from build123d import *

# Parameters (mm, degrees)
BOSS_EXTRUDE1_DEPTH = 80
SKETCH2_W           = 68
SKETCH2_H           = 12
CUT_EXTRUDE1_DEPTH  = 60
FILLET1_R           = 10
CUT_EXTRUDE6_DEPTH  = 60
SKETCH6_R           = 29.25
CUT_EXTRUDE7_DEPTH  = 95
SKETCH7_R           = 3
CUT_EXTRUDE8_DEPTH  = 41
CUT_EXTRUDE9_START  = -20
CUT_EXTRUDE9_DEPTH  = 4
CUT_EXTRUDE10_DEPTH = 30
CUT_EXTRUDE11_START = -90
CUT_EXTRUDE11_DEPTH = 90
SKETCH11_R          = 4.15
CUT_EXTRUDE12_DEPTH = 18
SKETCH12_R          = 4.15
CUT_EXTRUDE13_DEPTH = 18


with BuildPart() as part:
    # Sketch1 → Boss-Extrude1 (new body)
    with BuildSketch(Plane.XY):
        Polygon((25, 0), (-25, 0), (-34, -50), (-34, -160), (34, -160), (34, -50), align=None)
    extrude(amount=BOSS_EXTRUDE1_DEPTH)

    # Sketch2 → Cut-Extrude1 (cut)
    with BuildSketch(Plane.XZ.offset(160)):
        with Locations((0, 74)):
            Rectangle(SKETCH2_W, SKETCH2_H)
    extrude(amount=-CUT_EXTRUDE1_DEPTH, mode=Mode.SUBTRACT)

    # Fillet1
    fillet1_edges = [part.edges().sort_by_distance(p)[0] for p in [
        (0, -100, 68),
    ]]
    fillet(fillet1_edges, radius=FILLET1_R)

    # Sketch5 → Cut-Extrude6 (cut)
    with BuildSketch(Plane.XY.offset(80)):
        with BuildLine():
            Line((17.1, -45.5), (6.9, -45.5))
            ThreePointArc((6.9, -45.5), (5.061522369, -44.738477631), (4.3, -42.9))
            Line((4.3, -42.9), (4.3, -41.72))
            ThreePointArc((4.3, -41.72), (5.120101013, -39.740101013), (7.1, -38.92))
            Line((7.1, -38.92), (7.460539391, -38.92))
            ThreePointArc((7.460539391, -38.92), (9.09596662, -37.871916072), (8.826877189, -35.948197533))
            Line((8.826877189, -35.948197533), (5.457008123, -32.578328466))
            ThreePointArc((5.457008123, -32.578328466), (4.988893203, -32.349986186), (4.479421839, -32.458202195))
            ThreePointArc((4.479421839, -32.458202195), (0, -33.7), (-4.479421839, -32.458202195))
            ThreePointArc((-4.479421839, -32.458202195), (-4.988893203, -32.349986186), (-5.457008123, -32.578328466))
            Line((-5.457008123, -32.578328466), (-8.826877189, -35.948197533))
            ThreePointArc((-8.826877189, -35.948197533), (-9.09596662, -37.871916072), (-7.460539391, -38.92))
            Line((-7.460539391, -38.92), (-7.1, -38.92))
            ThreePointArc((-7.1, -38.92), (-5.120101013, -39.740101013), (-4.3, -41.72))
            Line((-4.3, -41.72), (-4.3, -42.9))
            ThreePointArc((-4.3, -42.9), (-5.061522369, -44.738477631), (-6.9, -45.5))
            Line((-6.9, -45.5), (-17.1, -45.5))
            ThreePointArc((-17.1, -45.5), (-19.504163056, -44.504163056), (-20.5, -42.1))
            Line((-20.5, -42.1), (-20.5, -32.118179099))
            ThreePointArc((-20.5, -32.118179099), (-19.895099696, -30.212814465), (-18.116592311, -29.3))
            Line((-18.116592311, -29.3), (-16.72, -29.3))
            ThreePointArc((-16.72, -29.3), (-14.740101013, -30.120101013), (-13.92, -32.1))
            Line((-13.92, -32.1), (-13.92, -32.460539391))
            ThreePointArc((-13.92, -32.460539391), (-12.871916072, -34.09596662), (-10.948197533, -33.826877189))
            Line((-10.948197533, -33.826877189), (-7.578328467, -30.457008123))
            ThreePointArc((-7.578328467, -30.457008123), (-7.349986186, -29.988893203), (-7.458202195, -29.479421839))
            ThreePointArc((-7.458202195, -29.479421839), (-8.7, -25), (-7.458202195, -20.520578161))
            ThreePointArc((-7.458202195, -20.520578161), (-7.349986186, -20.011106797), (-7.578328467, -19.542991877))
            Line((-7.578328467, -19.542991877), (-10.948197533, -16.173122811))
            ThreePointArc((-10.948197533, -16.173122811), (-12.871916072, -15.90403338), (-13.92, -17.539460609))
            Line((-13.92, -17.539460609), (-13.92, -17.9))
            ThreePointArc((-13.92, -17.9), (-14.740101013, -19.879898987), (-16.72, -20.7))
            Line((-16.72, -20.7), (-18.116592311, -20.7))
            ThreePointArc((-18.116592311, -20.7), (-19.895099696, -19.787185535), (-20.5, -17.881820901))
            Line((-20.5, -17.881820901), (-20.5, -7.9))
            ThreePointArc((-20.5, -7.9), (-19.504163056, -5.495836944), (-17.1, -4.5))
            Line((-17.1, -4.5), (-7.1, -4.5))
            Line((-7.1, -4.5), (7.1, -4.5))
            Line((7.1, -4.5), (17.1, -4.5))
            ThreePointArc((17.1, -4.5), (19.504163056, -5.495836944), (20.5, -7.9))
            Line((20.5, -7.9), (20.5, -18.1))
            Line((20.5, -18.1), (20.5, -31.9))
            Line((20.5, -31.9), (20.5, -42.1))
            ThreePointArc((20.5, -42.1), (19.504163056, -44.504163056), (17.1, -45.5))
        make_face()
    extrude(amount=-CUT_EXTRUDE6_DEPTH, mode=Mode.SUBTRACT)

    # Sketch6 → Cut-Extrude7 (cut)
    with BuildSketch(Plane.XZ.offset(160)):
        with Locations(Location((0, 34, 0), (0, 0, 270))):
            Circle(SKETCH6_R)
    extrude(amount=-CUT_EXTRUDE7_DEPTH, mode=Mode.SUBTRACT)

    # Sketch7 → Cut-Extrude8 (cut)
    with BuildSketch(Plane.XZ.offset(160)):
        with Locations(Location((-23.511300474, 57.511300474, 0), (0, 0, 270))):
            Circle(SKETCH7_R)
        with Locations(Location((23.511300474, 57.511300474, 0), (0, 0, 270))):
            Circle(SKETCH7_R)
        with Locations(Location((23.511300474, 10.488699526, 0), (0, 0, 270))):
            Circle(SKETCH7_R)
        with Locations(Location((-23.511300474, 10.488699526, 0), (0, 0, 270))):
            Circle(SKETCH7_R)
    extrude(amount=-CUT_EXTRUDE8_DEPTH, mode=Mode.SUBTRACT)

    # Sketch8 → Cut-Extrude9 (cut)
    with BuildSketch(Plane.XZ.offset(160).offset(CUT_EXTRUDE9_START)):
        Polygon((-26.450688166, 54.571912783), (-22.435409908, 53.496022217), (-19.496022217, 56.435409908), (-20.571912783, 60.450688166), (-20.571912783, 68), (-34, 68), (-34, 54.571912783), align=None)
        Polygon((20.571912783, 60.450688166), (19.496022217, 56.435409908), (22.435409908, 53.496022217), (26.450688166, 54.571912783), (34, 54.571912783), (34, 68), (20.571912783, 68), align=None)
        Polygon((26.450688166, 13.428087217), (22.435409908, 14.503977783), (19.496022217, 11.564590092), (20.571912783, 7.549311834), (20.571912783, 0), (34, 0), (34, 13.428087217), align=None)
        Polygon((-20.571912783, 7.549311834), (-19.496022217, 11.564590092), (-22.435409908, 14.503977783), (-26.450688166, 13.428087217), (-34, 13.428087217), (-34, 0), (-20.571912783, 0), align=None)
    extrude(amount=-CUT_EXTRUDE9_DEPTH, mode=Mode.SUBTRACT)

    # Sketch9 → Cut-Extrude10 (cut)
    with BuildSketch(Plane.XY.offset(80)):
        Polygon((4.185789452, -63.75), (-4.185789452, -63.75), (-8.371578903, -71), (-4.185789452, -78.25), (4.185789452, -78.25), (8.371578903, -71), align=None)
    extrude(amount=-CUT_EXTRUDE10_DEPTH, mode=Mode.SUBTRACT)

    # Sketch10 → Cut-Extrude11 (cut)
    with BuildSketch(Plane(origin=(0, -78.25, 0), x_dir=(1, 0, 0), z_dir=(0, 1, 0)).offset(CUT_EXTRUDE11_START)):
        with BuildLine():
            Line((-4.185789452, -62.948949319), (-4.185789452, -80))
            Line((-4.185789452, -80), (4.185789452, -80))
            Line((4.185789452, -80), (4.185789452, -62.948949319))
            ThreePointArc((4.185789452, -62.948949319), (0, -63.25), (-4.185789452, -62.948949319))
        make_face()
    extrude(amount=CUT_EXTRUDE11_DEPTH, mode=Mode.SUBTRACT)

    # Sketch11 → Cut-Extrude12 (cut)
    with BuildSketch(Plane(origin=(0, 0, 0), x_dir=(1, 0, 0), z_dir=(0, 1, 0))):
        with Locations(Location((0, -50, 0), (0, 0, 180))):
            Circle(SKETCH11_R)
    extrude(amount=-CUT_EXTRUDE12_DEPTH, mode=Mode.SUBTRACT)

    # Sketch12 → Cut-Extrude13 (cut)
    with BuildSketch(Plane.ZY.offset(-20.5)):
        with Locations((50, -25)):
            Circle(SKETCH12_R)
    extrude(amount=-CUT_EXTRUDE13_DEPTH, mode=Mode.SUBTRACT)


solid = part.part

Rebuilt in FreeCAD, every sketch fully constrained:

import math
import FreeCAD as App
import Part
import Sketcher

V = App.Vector
Q = App.Units.Quantity


def edges_at(feature, points):
    """Names of the edges that pass closest to the given points."""
    edges = feature.Shape.Edges
    near = lambda p: min(range(len(edges)), key=lambda i: edges[i].distToShape(Part.Vertex(*p))[0])
    return sorted({f"Edge{near(p) + 1}" for p in points})

doc = App.newDocument("Part")
body = doc.addObject("PartDesign::Body", "Body")

# Sketch on XY plane
sketch1 = body.newObject("Sketcher::SketchObject", "Sketch")
sketch1.AttachmentSupport = (doc.getObject("XY_Plane"), [""])
sketch1.MapMode = "FlatFace"
sketch1.addGeometry(Part.LineSegment(V(25, 0, 0), V(-25, 0, 0)), False)
sketch1.addGeometry(Part.LineSegment(V(-25, 0, 0), V(-34, -50, 0)), False)
sketch1.addGeometry(Part.LineSegment(V(-34, -50, 0), V(-34, -160, 0)), False)
sketch1.addGeometry(Part.LineSegment(V(-34, -160, 0), V(34, -160, 0)), False)
sketch1.addGeometry(Part.LineSegment(V(34, -160, 0), V(34, -50, 0)), False)
sketch1.addGeometry(Part.LineSegment(V(34, -50, 0), V(25, 0, 0)), False)
sketch1.addConstraint(Sketcher.Constraint("Coincident", 0, 2, 1, 1))
sketch1.addConstraint(Sketcher.Constraint("Coincident", 1, 2, 2, 1))
sketch1.addConstraint(Sketcher.Constraint("Coincident", 2, 2, 3, 1))
sketch1.addConstraint(Sketcher.Constraint("Coincident", 3, 2, 4, 1))
sketch1.addConstraint(Sketcher.Constraint("Coincident", 4, 2, 5, 1))
sketch1.addConstraint(Sketcher.Constraint("Coincident", 5, 2, 0, 1))
sketch1.addConstraint(Sketcher.Constraint("Horizontal", 0))
sketch1.addConstraint(Sketcher.Constraint("Vertical", 2))
sketch1.addConstraint(Sketcher.Constraint("Horizontal", 3))
sketch1.addConstraint(Sketcher.Constraint("Vertical", 4))
sketch1.addConstraint(Sketcher.Constraint("Symmetric", 0, 2, 5, 2, -1, 1))
sketch1.addConstraint(Sketcher.Constraint("Symmetric", 1, 2, 4, 2, -2))
sketch1.addConstraint(Sketcher.Constraint("DistanceX", 0, 2, 0, 1, Q("50 mm")))
sketch1.addConstraint(Sketcher.Constraint("DistanceX", 3, 1, 3, 2, Q("68 mm")))
sketch1.addConstraint(Sketcher.Constraint("DistanceY", 2, 2, 2, 1, Q("110 mm")))
sketch1.addConstraint(Sketcher.Constraint("DistanceY", 1, 2, -1, 1, Q("50 mm")))
pad1 = body.newObject("PartDesign::Pad", "Pad")
pad1.Profile = sketch1
pad1.Length = 80

# Sketch on XZ plane
sketch2 = body.newObject("Sketcher::SketchObject", "Sketch001")
sketch2.AttachmentSupport = (doc.getObject("XZ_Plane"), [""])
sketch2.MapMode = "FlatFace"
sketch2.AttachmentOffset = App.Placement(V(0, 0, 160), App.Rotation())
sketch2.addGeometry(Part.LineSegment(V(-34, 80, 0), V(-34, 68, 0)), False)
sketch2.addGeometry(Part.LineSegment(V(-34, 68, 0), V(34, 68, 0)), False)
sketch2.addGeometry(Part.LineSegment(V(34, 68, 0), V(34, 80, 0)), False)
sketch2.addGeometry(Part.LineSegment(V(34, 80, 0), V(-34, 80, 0)), False)
sketch2.addConstraint(Sketcher.Constraint("Coincident", 0, 2, 1, 1))
sketch2.addConstraint(Sketcher.Constraint("Coincident", 1, 2, 2, 1))
sketch2.addConstraint(Sketcher.Constraint("Coincident", 2, 2, 3, 1))
sketch2.addConstraint(Sketcher.Constraint("Coincident", 3, 2, 0, 1))
sketch2.addConstraint(Sketcher.Constraint("Vertical", 0))
sketch2.addConstraint(Sketcher.Constraint("Horizontal", 1))
sketch2.addConstraint(Sketcher.Constraint("Vertical", 2))
sketch2.addConstraint(Sketcher.Constraint("Horizontal", 3))
sketch2.addConstraint(Sketcher.Constraint("DistanceX", 1, 1, 1, 2, Q("68 mm")))
sketch2.addConstraint(Sketcher.Constraint("DistanceY", 0, 2, 0, 1, Q("12 mm")))
sketch2.addConstraint(Sketcher.Constraint("DistanceX", 0, 2, -1, 1, Q("34 mm")))
sketch2.addConstraint(Sketcher.Constraint("DistanceY", -1, 1, 0, 2, Q("68 mm")))
pocket1 = body.newObject("PartDesign::Pocket", "Pocket")
pocket1.Profile = sketch2
pocket1.Length = 60
doc.recompute()

fillet = body.newObject("PartDesign::Fillet", "Fillet")
fillet.Base = (pocket1, edges_at(pocket1, [(0, -100, 68)]))
fillet.Radius = 10

# Sketch on XY plane
sketch3 = body.newObject("Sketcher::SketchObject", "Sketch002")
sketch3.AttachmentSupport = (doc.getObject("XY_Plane"), [""])
sketch3.MapMode = "FlatFace"
sketch3.AttachmentOffset = App.Placement(V(0, 0, 80), App.Rotation())
sketch3.addGeometry(Part.LineSegment(V(6.9, -45.5, 0), V(17.1, -45.5, 0)), False)
sketch3.addGeometry(Part.ArcOfCircle(Part.Circle(V(17.1, -42.1, 0), V(0, 0, 1), 3.4), math.radians(-90), math.radians(0)), False)
sketch3.addGeometry(Part.LineSegment(V(20.5, -42.1, 0), V(20.5, -7.9, 0)), False)
sketch3.addGeometry(Part.ArcOfCircle(Part.Circle(V(17.1, -7.9, 0), V(0, 0, 1), 3.4), math.radians(0), math.radians(90)), False)
sketch3.addGeometry(Part.LineSegment(V(17.1, -4.5, 0), V(-17.1, -4.5, 0)), False)
sketch3.addGeometry(Part.ArcOfCircle(Part.Circle(V(-17.1, -7.9, 0), V(0, 0, 1), 3.4), math.radians(90), math.radians(180)), False)
sketch3.addGeometry(Part.LineSegment(V(-20.5, -7.9, 0), V(-20.5, -17.881821, 0)), False)
sketch3.addGeometry(Part.ArcOfCircle(Part.Circle(V(-17.909877, -18.108231, 0), V(0, 0, 1), 2.6), math.radians(175.004319), math.radians(265.439829)), False)
sketch3.addGeometry(Part.LineSegment(V(-18.116592, -20.7, 0), V(-16.72, -20.7, 0)), False)
sketch3.addGeometry(Part.ArcOfCircle(Part.Circle(V(-16.72, -17.9, 0), V(0, 0, 1), 2.8), math.radians(-90), math.radians(0)), False)
sketch3.addGeometry(Part.LineSegment(V(-13.92, -17.9, 0), V(-13.92, -17.539461, 0)), False)
sketch3.addGeometry(Part.ArcOfCircle(Part.Circle(V(-12.12, -17.539461, 0), V(0, 0, 1), 1.8), math.radians(49.382856), math.radians(180)), False)
sketch3.addGeometry(Part.LineSegment(V(-10.948198, -16.173123, 0), V(-7.578328, -19.542992, 0)), False)
sketch3.addGeometry(Part.ArcOfCircle(Part.Circle(V(-8.144014, -20.108677, 0), V(0, 0, 1), 0.8), math.radians(-30.989172), math.radians(45)), False)
sketch3.addGeometry(Part.ArcOfCircle(Part.Circle(V(0, -25, 0), V(0, 0, 1), 8.7), math.radians(149.010828), math.radians(210.989172)), False)
sketch3.addGeometry(Part.ArcOfCircle(Part.Circle(V(-8.144014, -29.891323, 0), V(0, 0, 1), 0.8), math.radians(-45), math.radians(30.989172)), False)
sketch3.addGeometry(Part.LineSegment(V(-7.578328, -30.457008, 0), V(-10.948198, -33.826877, 0)), False)
sketch3.addGeometry(Part.ArcOfCircle(Part.Circle(V(-12.12, -32.460539, 0), V(0, 0, 1), 1.8), math.radians(180), math.radians(310.617144)), False)
sketch3.addGeometry(Part.LineSegment(V(-13.92, -32.460539, 0), V(-13.92, -32.1, 0)), False)
sketch3.addGeometry(Part.ArcOfCircle(Part.Circle(V(-16.72, -32.1, 0), V(0, 0, 1), 2.8), math.radians(0), math.radians(90)), False)
sketch3.addGeometry(Part.LineSegment(V(-16.72, -29.3, 0), V(-18.116592, -29.3, 0)), False)
sketch3.addGeometry(Part.ArcOfCircle(Part.Circle(V(-17.909877, -31.891769, 0), V(0, 0, 1), 2.6), math.radians(94.560171), math.radians(184.995681)), False)
sketch3.addGeometry(Part.LineSegment(V(-20.5, -32.118179, 0), V(-20.5, -42.1, 0)), False)
sketch3.addGeometry(Part.ArcOfCircle(Part.Circle(V(-17.1, -42.1, 0), V(0, 0, 1), 3.4), math.radians(180), math.radians(270)), False)
sketch3.addGeometry(Part.LineSegment(V(-17.1, -45.5, 0), V(-6.9, -45.5, 0)), False)
sketch3.addGeometry(Part.ArcOfCircle(Part.Circle(V(-6.9, -42.9, 0), V(0, 0, 1), 2.6), math.radians(-90), math.radians(0)), False)
sketch3.addGeometry(Part.LineSegment(V(-4.3, -42.9, 0), V(-4.3, -41.72, 0)), False)
sketch3.addGeometry(Part.ArcOfCircle(Part.Circle(V(-7.1, -41.72, 0), V(0, 0, 1), 2.8), math.radians(0), math.radians(90)), False)
sketch3.addGeometry(Part.LineSegment(V(-7.1, -38.92, 0), V(-7.460539, -38.92, 0)), False)
sketch3.addGeometry(Part.ArcOfCircle(Part.Circle(V(-7.460539, -37.12, 0), V(0, 0, 1), 1.8), math.radians(139.382856), math.radians(270)), False)
sketch3.addGeometry(Part.LineSegment(V(-8.826877, -35.948198, 0), V(-5.457008, -32.578328, 0)), False)
sketch3.addGeometry(Part.ArcOfCircle(Part.Circle(V(-4.891323, -33.144014, 0), V(0, 0, 1), 0.8), math.radians(59.010828), math.radians(135)), False)
sketch3.addGeometry(Part.ArcOfCircle(Part.Circle(V(0, -25, 0), V(0, 0, 1), 8.7), math.radians(-120.989172), math.radians(-59.010828)), False)
sketch3.addGeometry(Part.ArcOfCircle(Part.Circle(V(4.891323, -33.144014, 0), V(0, 0, 1), 0.8), math.radians(45), math.radians(120.989172)), False)
sketch3.addGeometry(Part.LineSegment(V(5.457008, -32.578328, 0), V(8.826877, -35.948198, 0)), False)
sketch3.addGeometry(Part.ArcOfCircle(Part.Circle(V(7.460539, -37.12, 0), V(0, 0, 1), 1.8), math.radians(-90), math.radians(40.617144)), False)
sketch3.addGeometry(Part.LineSegment(V(7.460539, -38.92, 0), V(7.1, -38.92, 0)), False)
sketch3.addGeometry(Part.ArcOfCircle(Part.Circle(V(7.1, -41.72, 0), V(0, 0, 1), 2.8), math.radians(90), math.radians(180)), False)
sketch3.addGeometry(Part.LineSegment(V(4.3, -41.72, 0), V(4.3, -42.9, 0)), False)
sketch3.addGeometry(Part.ArcOfCircle(Part.Circle(V(6.9, -42.9, 0), V(0, 0, 1), 2.6), math.radians(180), math.radians(270)), False)
sketch3.addConstraint(Sketcher.Constraint("Tangent", 0, 2, 1, 1))
sketch3.addConstraint(Sketcher.Constraint("Tangent", 1, 2, 2, 1))
sketch3.addConstraint(Sketcher.Constraint("Tangent", 2, 2, 3, 1))
sketch3.addConstraint(Sketcher.Constraint("Tangent", 3, 2, 4, 1))
sketch3.addConstraint(Sketcher.Constraint("Tangent", 4, 2, 5, 1))
sketch3.addConstraint(Sketcher.Constraint("Tangent", 5, 2, 6, 1))
sketch3.addConstraint(Sketcher.Constraint("Coincident", 6, 2, 7, 1))
sketch3.addConstraint(Sketcher.Constraint("Coincident", 7, 2, 8, 1))
sketch3.addConstraint(Sketcher.Constraint("Tangent", 8, 2, 9, 1))
sketch3.addConstraint(Sketcher.Constraint("Tangent", 9, 2, 10, 1))
sketch3.addConstraint(Sketcher.Constraint("Tangent", 10, 2, 11, 2))
sketch3.addConstraint(Sketcher.Constraint("Coincident", 11, 1, 12, 1))
sketch3.addConstraint(Sketcher.Constraint("Tangent", 12, 2, 13, 2))
sketch3.addConstraint(Sketcher.Constraint("Tangent", 13, 1, 14, 1))
sketch3.addConstraint(Sketcher.Constraint("Tangent", 14, 2, 15, 2))
sketch3.addConstraint(Sketcher.Constraint("Tangent", 15, 1, 16, 1))
sketch3.addConstraint(Sketcher.Constraint("Coincident", 16, 2, 17, 2))
sketch3.addConstraint(Sketcher.Constraint("Tangent", 17, 1, 18, 1))
sketch3.addConstraint(Sketcher.Constraint("Tangent", 18, 2, 19, 1))
sketch3.addConstraint(Sketcher.Constraint("Tangent", 19, 2, 20, 1))
sketch3.addConstraint(Sketcher.Constraint("Coincident", 20, 2, 21, 1))
sketch3.addConstraint(Sketcher.Constraint("Coincident", 21, 2, 22, 1))
sketch3.addConstraint(Sketcher.Constraint("Tangent", 22, 2, 23, 1))
sketch3.addConstraint(Sketcher.Constraint("Tangent", 23, 2, 24, 1))
sketch3.addConstraint(Sketcher.Constraint("Tangent", 24, 2, 25, 1))
sketch3.addConstraint(Sketcher.Constraint("Tangent", 25, 2, 26, 1))
sketch3.addConstraint(Sketcher.Constraint("Tangent", 26, 2, 27, 1))
sketch3.addConstraint(Sketcher.Constraint("Tangent", 27, 2, 28, 1))
sketch3.addConstraint(Sketcher.Constraint("Tangent", 28, 2, 29, 2))
sketch3.addConstraint(Sketcher.Constraint("Coincident", 29, 1, 30, 1))
sketch3.addConstraint(Sketcher.Constraint("Tangent", 30, 2, 31, 2))
sketch3.addConstraint(Sketcher.Constraint("Tangent", 31, 1, 32, 1))
sketch3.addConstraint(Sketcher.Constraint("Tangent", 32, 2, 33, 2))
sketch3.addConstraint(Sketcher.Constraint("Tangent", 33, 1, 34, 1))
sketch3.addConstraint(Sketcher.Constraint("Coincident", 34, 2, 35, 2))
sketch3.addConstraint(Sketcher.Constraint("Tangent", 35, 1, 36, 1))
sketch3.addConstraint(Sketcher.Constraint("Tangent", 36, 2, 37, 1))
sketch3.addConstraint(Sketcher.Constraint("Tangent", 37, 2, 38, 1))
sketch3.addConstraint(Sketcher.Constraint("Tangent", 38, 2, 39, 1))
sketch3.addConstraint(Sketcher.Constraint("Tangent", 39, 2, 0, 1))
sketch3.addConstraint(Sketcher.Constraint("Horizontal", 0))
sketch3.addConstraint(Sketcher.Constraint("Vertical", 2))
sketch3.addConstraint(Sketcher.Constraint("Horizontal", 4))
sketch3.addConstraint(Sketcher.Constraint("Vertical", 6))
sketch3.addConstraint(Sketcher.Constraint("Horizontal", 8))
sketch3.addConstraint(Sketcher.Constraint("Vertical", 10))
sketch3.addConstraint(Sketcher.Constraint("Vertical", 18))
sketch3.addConstraint(Sketcher.Constraint("Horizontal", 20))
sketch3.addConstraint(Sketcher.Constraint("Vertical", 22))
sketch3.addConstraint(Sketcher.Constraint("Horizontal", 24))
sketch3.addConstraint(Sketcher.Constraint("Vertical", 26))
sketch3.addConstraint(Sketcher.Constraint("Horizontal", 28))
sketch3.addConstraint(Sketcher.Constraint("Horizontal", 36))
sketch3.addConstraint(Sketcher.Constraint("Vertical", 38))
sketch3.addConstraint(Sketcher.Constraint("Coincident", 32, 3, 14, 3))
sketch3.addConstraint(Sketcher.Constraint("Equal", 1, 3))
sketch3.addConstraint(Sketcher.Constraint("Equal", 3, 5))
sketch3.addConstraint(Sketcher.Constraint("Equal", 13, 15))
sketch3.addConstraint(Sketcher.Constraint("Equal", 11, 17))
sketch3.addConstraint(Sketcher.Constraint("Equal", 9, 19))
sketch3.addConstraint(Sketcher.Constraint("Equal", 7, 21))
sketch3.addConstraint(Sketcher.Constraint("Equal", 5, 23))
sketch3.addConstraint(Sketcher.Constraint("Equal", 21, 25))
sketch3.addConstraint(Sketcher.Constraint("Equal", 19, 27))
sketch3.addConstraint(Sketcher.Constraint("Equal", 17, 29))
sketch3.addConstraint(Sketcher.Constraint("Equal", 15, 31))
sketch3.addConstraint(Sketcher.Constraint("Equal", 14, 32))
sketch3.addConstraint(Sketcher.Constraint("Equal", 31, 33))
sketch3.addConstraint(Sketcher.Constraint("Equal", 29, 35))
sketch3.addConstraint(Sketcher.Constraint("Equal", 27, 37))
sketch3.addConstraint(Sketcher.Constraint("Equal", 25, 39))
sketch3.addConstraint(Sketcher.Constraint("Symmetric", 1, 3, 23, 3, -2))
sketch3.addConstraint(Sketcher.Constraint("Symmetric", 31, 3, 33, 3, -2))
sketch3.addConstraint(Sketcher.Constraint("Symmetric", 29, 3, 35, 3, -2))
sketch3.addConstraint(Sketcher.Constraint("Perpendicular", 12, 16))
sketch3.addConstraint(Sketcher.Constraint("Parallel", 16, 30))
sketch3.addConstraint(Sketcher.Constraint("Perpendicular", 30, 34))
sketch3.addConstraint(Sketcher.Constraint("Horizontal", 30, 2, 33, 1))
sketch3.addConstraint(Sketcher.Constraint("Vertical", 13, 3, 15, 3))
sketch3.addConstraint(Sketcher.Constraint("Vertical", 11, 3, 17, 3))
sketch3.addConstraint(Sketcher.Constraint("Vertical", 7, 3, 21, 3))
sketch3.addConstraint(Sketcher.Constraint("Vertical", 5, 3, 23, 3))
sketch3.addConstraint(Sketcher.Constraint("Vertical", 11, 1, 16, 2))
sketch3.addConstraint(Sketcher.Constraint("Vertical", 7, 2, 20, 2))
sketch3.addConstraint(Sketcher.Constraint("Equal", 0, 24))
sketch3.addConstraint(Sketcher.Constraint("Equal", 4, 2))
sketch3.addConstraint(Sketcher.Constraint("Equal", 36, 10))
sketch3.addConstraint(Sketcher.Constraint("Equal", 10, 18))
sketch3.addConstraint(Sketcher.Constraint("Equal", 6, 22))
sketch3.addConstraint(Sketcher.Constraint("Equal", 16, 30))
sketch3.addConstraint(Sketcher.Constraint("Radius", 1, Q("3.4 mm")))
sketch3.addConstraint(Sketcher.Constraint("Radius", 7, Q("2.6 mm")))
sketch3.addConstraint(Sketcher.Constraint("Radius", 9, Q("2.8 mm")))
sketch3.addConstraint(Sketcher.Constraint("Radius", 11, Q("1.8 mm")))
sketch3.addConstraint(Sketcher.Constraint("Radius", 13, Q("0.8 mm")))
sketch3.addConstraint(Sketcher.Constraint("Radius", 14, Q("8.7 mm")))
sketch3.addConstraint(Sketcher.Constraint("DistanceX", 0, 1, 0, 2, Q("10.2 mm")))
sketch3.addConstraint(Sketcher.Constraint("DistanceX", 4, 2, 4, 1, Q("34.2 mm")))
sketch3.addConstraint(Sketcher.Constraint("DistanceY", 14, 3, -1, 1, Q("25 mm")))
sketch3.addConstraint(Sketcher.Constraint("DistanceY", 26, 1, 26, 2, Q("1.18 mm")))
sketch3.addConstraint(Sketcher.Constraint("DistanceY", 9, 3, -1, 1, Q("17.9 mm")))
sketch3.addConstraint(Sketcher.Constraint("DistanceX", 9, 3, -1, 1, Q("16.72 mm")))
sketch3.addConstraint(Sketcher.Constraint("DistanceX", 28, 2, 28, 1, Q("0.360539 mm")))
sketch3.addConstraint(Sketcher.Constraint("DistanceY", 6, 2, 6, 1, Q("9.981821 mm")))
sketch3.addConstraint(Sketcher.Constraint("DistanceX", 8, 1, 8, 2, Q("1.396592 mm")))
sketch3.addConstraint(Sketcher.Constraint("DistanceX", 12, 2, -1, 1, Q("7.578328 mm")))
pocket2 = body.newObject("PartDesign::Pocket", "Pocket001")
pocket2.Profile = sketch3
pocket2.Length = 60

# Sketch on XZ plane
sketch4 = body.newObject("Sketcher::SketchObject", "Sketch003")
sketch4.AttachmentSupport = (doc.getObject("XZ_Plane"), [""])
sketch4.MapMode = "FlatFace"
sketch4.AttachmentOffset = App.Placement(V(0, 0, 160), App.Rotation())
sketch4.addGeometry(Part.Circle(V(0, 34, 0), V(0, 0, 1), 29.25), False)
sketch4.addConstraint(Sketcher.Constraint("PointOnObject", 0, 3, -2))
sketch4.addConstraint(Sketcher.Constraint("Diameter", 0, Q("58.5 mm")))
sketch4.addConstraint(Sketcher.Constraint("DistanceY", -1, 1, 0, 3, Q("34 mm")))
pocket3 = body.newObject("PartDesign::Pocket", "Pocket002")
pocket3.Profile = sketch4
pocket3.Length = 95

# Sketch on XZ plane
sketch5 = body.newObject("Sketcher::SketchObject", "Sketch004")
sketch5.AttachmentSupport = (doc.getObject("XZ_Plane"), [""])
sketch5.MapMode = "FlatFace"
sketch5.AttachmentOffset = App.Placement(V(0, 0, 160), App.Rotation())
sketch5.addGeometry(Part.Circle(V(-23.5113, 57.5113, 0), V(0, 0, 1), 3), False)
sketch5.addGeometry(Part.Circle(V(23.5113, 57.5113, 0), V(0, 0, 1), 3), False)
sketch5.addGeometry(Part.Circle(V(23.5113, 10.4887, 0), V(0, 0, 1), 3), False)
sketch5.addGeometry(Part.Circle(V(-23.5113, 10.4887, 0), V(0, 0, 1), 3), False)
sketch5.addConstraint(Sketcher.Constraint("Equal", 0, 1))
sketch5.addConstraint(Sketcher.Constraint("Equal", 1, 2))
sketch5.addConstraint(Sketcher.Constraint("Equal", 2, 3))
sketch5.addConstraint(Sketcher.Constraint("Symmetric", 0, 3, 1, 3, -2))
sketch5.addConstraint(Sketcher.Constraint("Symmetric", 2, 3, 3, 3, -2))
sketch5.addConstraint(Sketcher.Constraint("Vertical", 1, 3, 2, 3))
sketch5.addConstraint(Sketcher.Constraint("Diameter", 0, Q("6 mm")))
sketch5.addConstraint(Sketcher.Constraint("DistanceX", 0, 3, -1, 1, Q("23.5113 mm")))
sketch5.addConstraint(Sketcher.Constraint("DistanceY", -1, 1, 0, 3, Q("57.5113 mm")))
sketch5.addConstraint(Sketcher.Constraint("DistanceY", -1, 1, 2, 3, Q("10.4887 mm")))
pocket4 = body.newObject("PartDesign::Pocket", "Pocket003")
pocket4.Profile = sketch5
pocket4.Length = 41

# Sketch on XZ plane
sketch6 = body.newObject("Sketcher::SketchObject", "Sketch005")
sketch6.AttachmentSupport = (doc.getObject("XZ_Plane"), [""])
sketch6.MapMode = "FlatFace"
sketch6.AttachmentOffset = App.Placement(V(0, 0, 140), App.Rotation())
sketch6.addGeometry(Part.LineSegment(V(-26.450688, 54.571913, 0), V(-22.43541, 53.496022, 0)), False)
sketch6.addGeometry(Part.LineSegment(V(-22.43541, 53.496022, 0), V(-19.496022, 56.43541, 0)), False)
sketch6.addGeometry(Part.LineSegment(V(-19.496022, 56.43541, 0), V(-20.571913, 60.450688, 0)), False)
sketch6.addGeometry(Part.LineSegment(V(-20.571913, 60.450688, 0), V(-20.571913, 68, 0)), False)
sketch6.addGeometry(Part.LineSegment(V(-20.571913, 68, 0), V(-34, 68, 0)), False)
sketch6.addGeometry(Part.LineSegment(V(-34, 68, 0), V(-34, 54.571913, 0)), False)
sketch6.addGeometry(Part.LineSegment(V(-34, 54.571913, 0), V(-26.450688, 54.571913, 0)), False)
sketch6.addGeometry(Part.LineSegment(V(20.571913, 60.450688, 0), V(19.496022, 56.43541, 0)), False)
sketch6.addGeometry(Part.LineSegment(V(19.496022, 56.43541, 0), V(22.43541, 53.496022, 0)), False)
sketch6.addGeometry(Part.LineSegment(V(22.43541, 53.496022, 0), V(26.450688, 54.571913, 0)), False)
sketch6.addGeometry(Part.LineSegment(V(26.450688, 54.571913, 0), V(34, 54.571913, 0)), False)
sketch6.addGeometry(Part.LineSegment(V(34, 54.571913, 0), V(34, 68, 0)), False)
sketch6.addGeometry(Part.LineSegment(V(34, 68, 0), V(20.571913, 68, 0)), False)
sketch6.addGeometry(Part.LineSegment(V(20.571913, 68, 0), V(20.571913, 60.450688, 0)), False)
sketch6.addGeometry(Part.LineSegment(V(26.450688, 13.428087, 0), V(22.43541, 14.503978, 0)), False)
sketch6.addGeometry(Part.LineSegment(V(22.43541, 14.503978, 0), V(19.496022, 11.56459, 0)), False)
sketch6.addGeometry(Part.LineSegment(V(19.496022, 11.56459, 0), V(20.571913, 7.549312, 0)), False)
sketch6.addGeometry(Part.LineSegment(V(20.571913, 7.549312, 0), V(20.571913, 0, 0)), False)
sketch6.addGeometry(Part.LineSegment(V(20.571913, 0, 0), V(34, 0, 0)), False)
sketch6.addGeometry(Part.LineSegment(V(34, 0, 0), V(34, 13.428087, 0)), False)
sketch6.addGeometry(Part.LineSegment(V(34, 13.428087, 0), V(26.450688, 13.428087, 0)), False)
sketch6.addGeometry(Part.LineSegment(V(-20.571913, 7.549312, 0), V(-19.496022, 11.56459, 0)), False)
sketch6.addGeometry(Part.LineSegment(V(-19.496022, 11.56459, 0), V(-22.43541, 14.503978, 0)), False)
sketch6.addGeometry(Part.LineSegment(V(-22.43541, 14.503978, 0), V(-26.450688, 13.428087, 0)), False)
sketch6.addGeometry(Part.LineSegment(V(-26.450688, 13.428087, 0), V(-34, 13.428087, 0)), False)
sketch6.addGeometry(Part.LineSegment(V(-34, 13.428087, 0), V(-34, 0, 0)), False)
sketch6.addGeometry(Part.LineSegment(V(-34, 0, 0), V(-20.571913, 0, 0)), False)
sketch6.addGeometry(Part.LineSegment(V(-20.571913, 0, 0), V(-20.571913, 7.549312, 0)), False)
sketch6.addConstraint(Sketcher.Constraint("Coincident", 0, 2, 1, 1))
sketch6.addConstraint(Sketcher.Constraint("Coincident", 1, 2, 2, 1))
sketch6.addConstraint(Sketcher.Constraint("Coincident", 2, 2, 3, 1))
sketch6.addConstraint(Sketcher.Constraint("Coincident", 3, 2, 4, 1))
sketch6.addConstraint(Sketcher.Constraint("Coincident", 4, 2, 5, 1))
sketch6.addConstraint(Sketcher.Constraint("Coincident", 5, 2, 6, 1))
sketch6.addConstraint(Sketcher.Constraint("Coincident", 6, 2, 0, 1))
sketch6.addConstraint(Sketcher.Constraint("Coincident", 7, 2, 8, 1))
sketch6.addConstraint(Sketcher.Constraint("Coincident", 8, 2, 9, 1))
sketch6.addConstraint(Sketcher.Constraint("Coincident", 9, 2, 10, 1))
sketch6.addConstraint(Sketcher.Constraint("Coincident", 10, 2, 11, 1))
sketch6.addConstraint(Sketcher.Constraint("Coincident", 11, 2, 12, 1))
sketch6.addConstraint(Sketcher.Constraint("Coincident", 12, 2, 13, 1))
sketch6.addConstraint(Sketcher.Constraint("Coincident", 13, 2, 7, 1))
sketch6.addConstraint(Sketcher.Constraint("Coincident", 14, 2, 15, 1))
sketch6.addConstraint(Sketcher.Constraint("Coincident", 15, 2, 16, 1))
sketch6.addConstraint(Sketcher.Constraint("Coincident", 16, 2, 17, 1))
sketch6.addConstraint(Sketcher.Constraint("Coincident", 17, 2, 18, 1))
sketch6.addConstraint(Sketcher.Constraint("Coincident", 18, 2, 19, 1))
sketch6.addConstraint(Sketcher.Constraint("Coincident", 19, 2, 20, 1))
sketch6.addConstraint(Sketcher.Constraint("Coincident", 20, 2, 14, 1))
sketch6.addConstraint(Sketcher.Constraint("Coincident", 21, 2, 22, 1))
sketch6.addConstraint(Sketcher.Constraint("Coincident", 22, 2, 23, 1))
sketch6.addConstraint(Sketcher.Constraint("Coincident", 23, 2, 24, 1))
sketch6.addConstraint(Sketcher.Constraint("Coincident", 24, 2, 25, 1))
sketch6.addConstraint(Sketcher.Constraint("Coincident", 25, 2, 26, 1))
sketch6.addConstraint(Sketcher.Constraint("Coincident", 26, 2, 27, 1))
sketch6.addConstraint(Sketcher.Constraint("Coincident", 27, 2, 21, 1))
sketch6.addConstraint(Sketcher.Constraint("Vertical", 3))
sketch6.addConstraint(Sketcher.Constraint("Horizontal", 4))
sketch6.addConstraint(Sketcher.Constraint("Vertical", 5))
sketch6.addConstraint(Sketcher.Constraint("Horizontal", 6))
sketch6.addConstraint(Sketcher.Constraint("Horizontal", 10))
sketch6.addConstraint(Sketcher.Constraint("Vertical", 11))
sketch6.addConstraint(Sketcher.Constraint("Horizontal", 12))
sketch6.addConstraint(Sketcher.Constraint("Vertical", 13))
sketch6.addConstraint(Sketcher.Constraint("Vertical", 17))
sketch6.addConstraint(Sketcher.Constraint("Horizontal", 18))
sketch6.addConstraint(Sketcher.Constraint("Vertical", 19))
sketch6.addConstraint(Sketcher.Constraint("Horizontal", 20))
sketch6.addConstraint(Sketcher.Constraint("Horizontal", 24))
sketch6.addConstraint(Sketcher.Constraint("Vertical", 25))
sketch6.addConstraint(Sketcher.Constraint("Horizontal", 26))
sketch6.addConstraint(Sketcher.Constraint("Vertical", 27))
sketch6.addConstraint(Sketcher.Constraint("Symmetric", 18, 2, 25, 2, -1, 1))
sketch6.addConstraint(Sketcher.Constraint("Symmetric", 1, 2, 7, 2, -2))
sketch6.addConstraint(Sketcher.Constraint("Symmetric", 0, 2, 8, 2, -2))
sketch6.addConstraint(Sketcher.Constraint("Symmetric", 6, 2, 9, 2, -2))
sketch6.addConstraint(Sketcher.Constraint("Symmetric", 4, 2, 11, 2, -2))
sketch6.addConstraint(Sketcher.Constraint("Symmetric", 2, 2, 13, 2, -2))
sketch6.addConstraint(Sketcher.Constraint("Symmetric", 15, 2, 21, 2, -2))
sketch6.addConstraint(Sketcher.Constraint("Symmetric", 14, 2, 22, 2, -2))
sketch6.addConstraint(Sketcher.Constraint("Symmetric", 20, 2, 23, 2, -2))
sketch6.addConstraint(Sketcher.Constraint("Symmetric", 17, 2, 26, 2, -2))
sketch6.addConstraint(Sketcher.Constraint("Perpendicular", 0, 7))
sketch6.addConstraint(Sketcher.Constraint("Perpendicular", 1, 8))
sketch6.addConstraint(Sketcher.Constraint("Perpendicular", 7, 14))
sketch6.addConstraint(Sketcher.Constraint("Perpendicular", 8, 15))
sketch6.addConstraint(Sketcher.Constraint("Perpendicular", 9, 16))
sketch6.addConstraint(Sketcher.Constraint("Perpendicular", 14, 21))
sketch6.addConstraint(Sketcher.Constraint("Vertical", 8, 2, 14, 2))
sketch6.addConstraint(Sketcher.Constraint("Vertical", 7, 2, 15, 2))
sketch6.addConstraint(Sketcher.Constraint("Vertical", 13, 2, 16, 2))
sketch6.addConstraint(Sketcher.Constraint("Vertical", 11, 2, 18, 2))
sketch6.addConstraint(Sketcher.Constraint("Vertical", 9, 2, 20, 2))
sketch6.addConstraint(Sketcher.Constraint("Equal", 24, 3))
sketch6.addConstraint(Sketcher.Constraint("Equal", 26, 5))
sketch6.addConstraint(Sketcher.Constraint("Equal", 13, 17))
sketch6.addConstraint(Sketcher.Constraint("Equal", 0, 1))
sketch6.addConstraint(Sketcher.Constraint("Angle", 0, Q("-15 deg")))
sketch6.addConstraint(Sketcher.Constraint("DistanceY", -1, 1, 3, 2, Q("68 mm")))
sketch6.addConstraint(Sketcher.Constraint("DistanceX", 4, 2, -1, 1, Q("34 mm")))
sketch6.addConstraint(Sketcher.Constraint("DistanceX", 6, 1, 6, 2, Q("7.549312 mm")))
sketch6.addConstraint(Sketcher.Constraint("DistanceX", 2, 2, 9, 2, Q("47.022601 mm")))
pocket5 = body.newObject("PartDesign::Pocket", "Pocket004")
pocket5.Profile = sketch6
pocket5.Length = 4

# Sketch on XY plane
sketch7 = body.newObject("Sketcher::SketchObject", "Sketch006")
sketch7.AttachmentSupport = (doc.getObject("XY_Plane"), [""])
sketch7.MapMode = "FlatFace"
sketch7.AttachmentOffset = App.Placement(V(0, 0, 80), App.Rotation())
sketch7.addGeometry(Part.LineSegment(V(4.185789, -63.75, 0), V(-4.185789, -63.75, 0)), False)
sketch7.addGeometry(Part.LineSegment(V(-4.185789, -63.75, 0), V(-8.371579, -71, 0)), False)
sketch7.addGeometry(Part.LineSegment(V(-8.371579, -71, 0), V(-4.185789, -78.25, 0)), False)
sketch7.addGeometry(Part.LineSegment(V(-4.185789, -78.25, 0), V(4.185789, -78.25, 0)), False)
sketch7.addGeometry(Part.LineSegment(V(4.185789, -78.25, 0), V(8.371579, -71, 0)), False)
sketch7.addGeometry(Part.LineSegment(V(8.371579, -71, 0), V(4.185789, -63.75, 0)), False)
sketch7.addConstraint(Sketcher.Constraint("Coincident", 0, 2, 1, 1))
sketch7.addConstraint(Sketcher.Constraint("Coincident", 1, 2, 2, 1))
sketch7.addConstraint(Sketcher.Constraint("Coincident", 2, 2, 3, 1))
sketch7.addConstraint(Sketcher.Constraint("Coincident", 3, 2, 4, 1))
sketch7.addConstraint(Sketcher.Constraint("Coincident", 4, 2, 5, 1))
sketch7.addConstraint(Sketcher.Constraint("Coincident", 5, 2, 0, 1))
sketch7.addConstraint(Sketcher.Constraint("Horizontal", 0))
sketch7.addConstraint(Sketcher.Constraint("Horizontal", 3))
sketch7.addConstraint(Sketcher.Constraint("Symmetric", 1, 2, 4, 2, -2))
sketch7.addConstraint(Sketcher.Constraint("Parallel", 1, 4))
sketch7.addConstraint(Sketcher.Constraint("Parallel", 2, 5))
sketch7.addConstraint(Sketcher.Constraint("Vertical", 0, 2, 2, 2))
sketch7.addConstraint(Sketcher.Constraint("Vertical", 3, 2, 5, 2))
sketch7.addConstraint(Sketcher.Constraint("Angle", 1, Q("-120 deg")))
sketch7.addConstraint(Sketcher.Constraint("DistanceY", 1, 2, -1, 1, Q("71 mm")))
sketch7.addConstraint(Sketcher.Constraint("DistanceY", 2, 2, 0, 2, Q("14.5 mm")))
sketch7.addConstraint(Sketcher.Constraint("DistanceX", 0, 2, 0, 1, Q("8.371579 mm")))
pocket6 = body.newObject("PartDesign::Pocket", "Pocket005")
pocket6.Profile = sketch7
pocket6.Length = 30

# Sketch on XZ plane
sketch8 = body.newObject("Sketcher::SketchObject", "Sketch007")
sketch8.AttachmentSupport = (doc.getObject("XZ_Plane"), [""])
sketch8.MapMode = "FlatFace"
sketch8.AttachmentOffset = App.Placement(V(0, 0, 168.25), App.Rotation())
sketch8.addGeometry(Part.LineSegment(V(-4.185789, 62.948949, 0), V(-4.185789, 80, 0)), False)
sketch8.addGeometry(Part.LineSegment(V(-4.185789, 80, 0), V(4.185789, 80, 0)), False)
sketch8.addGeometry(Part.LineSegment(V(4.185789, 80, 0), V(4.185789, 62.948949, 0)), False)
sketch8.addGeometry(Part.ArcOfCircle(Part.Circle(V(0, 34, 0), V(0, 0, 1), 29.25), math.radians(81.772504), math.radians(98.227496)), False)
sketch8.addConstraint(Sketcher.Constraint("Coincident", 0, 2, 1, 1))
sketch8.addConstraint(Sketcher.Constraint("Coincident", 1, 2, 2, 1))
sketch8.addConstraint(Sketcher.Constraint("Coincident", 2, 2, 3, 1))
sketch8.addConstraint(Sketcher.Constraint("Coincident", 3, 2, 0, 1))
sketch8.addConstraint(Sketcher.Constraint("Vertical", 0))
sketch8.addConstraint(Sketcher.Constraint("Horizontal", 1))
sketch8.addConstraint(Sketcher.Constraint("Vertical", 2))
sketch8.addConstraint(Sketcher.Constraint("Symmetric", 2, 2, 3, 2, -2))
sketch8.addConstraint(Sketcher.Constraint("Radius", 3, Q("29.25 mm")))
sketch8.addConstraint(Sketcher.Constraint("DistanceY", -1, 1, 3, 3, Q("34 mm")))
sketch8.addConstraint(Sketcher.Constraint("DistanceY", -1, 1, 0, 2, Q("80 mm")))
sketch8.addConstraint(Sketcher.Constraint("DistanceX", 1, 1, 1, 2, Q("8.371579 mm")))
pocket7 = body.newObject("PartDesign::Pocket", "Pocket006")
pocket7.Profile = sketch8
pocket7.Length = 90

# Sketch on XZ plane
sketch9 = body.newObject("Sketcher::SketchObject", "Sketch008")
sketch9.AttachmentSupport = (doc.getObject("XZ_Plane"), [""])
sketch9.MapMode = "FlatFace"
sketch9.addGeometry(Part.Circle(V(0, 50, 0), V(0, 0, 1), 4.15), False)
sketch9.addConstraint(Sketcher.Constraint("PointOnObject", 0, 3, -2))
sketch9.addConstraint(Sketcher.Constraint("Diameter", 0, Q("8.3 mm")))
sketch9.addConstraint(Sketcher.Constraint("DistanceY", -1, 1, 0, 3, Q("50 mm")))
pocket8 = body.newObject("PartDesign::Pocket", "Pocket007")
pocket8.Profile = sketch9
pocket8.Length = 18
pocket8.Reversed = True

# Sketch on YZ plane
sketch10 = body.newObject("Sketcher::SketchObject", "Sketch009")
sketch10.AttachmentSupport = (doc.getObject("YZ_Plane"), [""])
sketch10.MapMode = "FlatFace"
sketch10.AttachmentOffset = App.Placement(V(0, 0, 20.5), App.Rotation())
sketch10.addGeometry(Part.Circle(V(-25, 50, 0), V(0, 0, 1), 4.15), False)
sketch10.addConstraint(Sketcher.Constraint("Diameter", 0, Q("8.3 mm")))
sketch10.addConstraint(Sketcher.Constraint("DistanceX", 0, 3, -1, 1, Q("25 mm")))
sketch10.addConstraint(Sketcher.Constraint("DistanceY", -1, 1, 0, 3, Q("50 mm")))
pocket9 = body.newObject("PartDesign::Pocket", "Pocket008")
pocket9.Profile = sketch10
pocket9.Length = 18
pocket9.Reversed = True

doc.recompute()
